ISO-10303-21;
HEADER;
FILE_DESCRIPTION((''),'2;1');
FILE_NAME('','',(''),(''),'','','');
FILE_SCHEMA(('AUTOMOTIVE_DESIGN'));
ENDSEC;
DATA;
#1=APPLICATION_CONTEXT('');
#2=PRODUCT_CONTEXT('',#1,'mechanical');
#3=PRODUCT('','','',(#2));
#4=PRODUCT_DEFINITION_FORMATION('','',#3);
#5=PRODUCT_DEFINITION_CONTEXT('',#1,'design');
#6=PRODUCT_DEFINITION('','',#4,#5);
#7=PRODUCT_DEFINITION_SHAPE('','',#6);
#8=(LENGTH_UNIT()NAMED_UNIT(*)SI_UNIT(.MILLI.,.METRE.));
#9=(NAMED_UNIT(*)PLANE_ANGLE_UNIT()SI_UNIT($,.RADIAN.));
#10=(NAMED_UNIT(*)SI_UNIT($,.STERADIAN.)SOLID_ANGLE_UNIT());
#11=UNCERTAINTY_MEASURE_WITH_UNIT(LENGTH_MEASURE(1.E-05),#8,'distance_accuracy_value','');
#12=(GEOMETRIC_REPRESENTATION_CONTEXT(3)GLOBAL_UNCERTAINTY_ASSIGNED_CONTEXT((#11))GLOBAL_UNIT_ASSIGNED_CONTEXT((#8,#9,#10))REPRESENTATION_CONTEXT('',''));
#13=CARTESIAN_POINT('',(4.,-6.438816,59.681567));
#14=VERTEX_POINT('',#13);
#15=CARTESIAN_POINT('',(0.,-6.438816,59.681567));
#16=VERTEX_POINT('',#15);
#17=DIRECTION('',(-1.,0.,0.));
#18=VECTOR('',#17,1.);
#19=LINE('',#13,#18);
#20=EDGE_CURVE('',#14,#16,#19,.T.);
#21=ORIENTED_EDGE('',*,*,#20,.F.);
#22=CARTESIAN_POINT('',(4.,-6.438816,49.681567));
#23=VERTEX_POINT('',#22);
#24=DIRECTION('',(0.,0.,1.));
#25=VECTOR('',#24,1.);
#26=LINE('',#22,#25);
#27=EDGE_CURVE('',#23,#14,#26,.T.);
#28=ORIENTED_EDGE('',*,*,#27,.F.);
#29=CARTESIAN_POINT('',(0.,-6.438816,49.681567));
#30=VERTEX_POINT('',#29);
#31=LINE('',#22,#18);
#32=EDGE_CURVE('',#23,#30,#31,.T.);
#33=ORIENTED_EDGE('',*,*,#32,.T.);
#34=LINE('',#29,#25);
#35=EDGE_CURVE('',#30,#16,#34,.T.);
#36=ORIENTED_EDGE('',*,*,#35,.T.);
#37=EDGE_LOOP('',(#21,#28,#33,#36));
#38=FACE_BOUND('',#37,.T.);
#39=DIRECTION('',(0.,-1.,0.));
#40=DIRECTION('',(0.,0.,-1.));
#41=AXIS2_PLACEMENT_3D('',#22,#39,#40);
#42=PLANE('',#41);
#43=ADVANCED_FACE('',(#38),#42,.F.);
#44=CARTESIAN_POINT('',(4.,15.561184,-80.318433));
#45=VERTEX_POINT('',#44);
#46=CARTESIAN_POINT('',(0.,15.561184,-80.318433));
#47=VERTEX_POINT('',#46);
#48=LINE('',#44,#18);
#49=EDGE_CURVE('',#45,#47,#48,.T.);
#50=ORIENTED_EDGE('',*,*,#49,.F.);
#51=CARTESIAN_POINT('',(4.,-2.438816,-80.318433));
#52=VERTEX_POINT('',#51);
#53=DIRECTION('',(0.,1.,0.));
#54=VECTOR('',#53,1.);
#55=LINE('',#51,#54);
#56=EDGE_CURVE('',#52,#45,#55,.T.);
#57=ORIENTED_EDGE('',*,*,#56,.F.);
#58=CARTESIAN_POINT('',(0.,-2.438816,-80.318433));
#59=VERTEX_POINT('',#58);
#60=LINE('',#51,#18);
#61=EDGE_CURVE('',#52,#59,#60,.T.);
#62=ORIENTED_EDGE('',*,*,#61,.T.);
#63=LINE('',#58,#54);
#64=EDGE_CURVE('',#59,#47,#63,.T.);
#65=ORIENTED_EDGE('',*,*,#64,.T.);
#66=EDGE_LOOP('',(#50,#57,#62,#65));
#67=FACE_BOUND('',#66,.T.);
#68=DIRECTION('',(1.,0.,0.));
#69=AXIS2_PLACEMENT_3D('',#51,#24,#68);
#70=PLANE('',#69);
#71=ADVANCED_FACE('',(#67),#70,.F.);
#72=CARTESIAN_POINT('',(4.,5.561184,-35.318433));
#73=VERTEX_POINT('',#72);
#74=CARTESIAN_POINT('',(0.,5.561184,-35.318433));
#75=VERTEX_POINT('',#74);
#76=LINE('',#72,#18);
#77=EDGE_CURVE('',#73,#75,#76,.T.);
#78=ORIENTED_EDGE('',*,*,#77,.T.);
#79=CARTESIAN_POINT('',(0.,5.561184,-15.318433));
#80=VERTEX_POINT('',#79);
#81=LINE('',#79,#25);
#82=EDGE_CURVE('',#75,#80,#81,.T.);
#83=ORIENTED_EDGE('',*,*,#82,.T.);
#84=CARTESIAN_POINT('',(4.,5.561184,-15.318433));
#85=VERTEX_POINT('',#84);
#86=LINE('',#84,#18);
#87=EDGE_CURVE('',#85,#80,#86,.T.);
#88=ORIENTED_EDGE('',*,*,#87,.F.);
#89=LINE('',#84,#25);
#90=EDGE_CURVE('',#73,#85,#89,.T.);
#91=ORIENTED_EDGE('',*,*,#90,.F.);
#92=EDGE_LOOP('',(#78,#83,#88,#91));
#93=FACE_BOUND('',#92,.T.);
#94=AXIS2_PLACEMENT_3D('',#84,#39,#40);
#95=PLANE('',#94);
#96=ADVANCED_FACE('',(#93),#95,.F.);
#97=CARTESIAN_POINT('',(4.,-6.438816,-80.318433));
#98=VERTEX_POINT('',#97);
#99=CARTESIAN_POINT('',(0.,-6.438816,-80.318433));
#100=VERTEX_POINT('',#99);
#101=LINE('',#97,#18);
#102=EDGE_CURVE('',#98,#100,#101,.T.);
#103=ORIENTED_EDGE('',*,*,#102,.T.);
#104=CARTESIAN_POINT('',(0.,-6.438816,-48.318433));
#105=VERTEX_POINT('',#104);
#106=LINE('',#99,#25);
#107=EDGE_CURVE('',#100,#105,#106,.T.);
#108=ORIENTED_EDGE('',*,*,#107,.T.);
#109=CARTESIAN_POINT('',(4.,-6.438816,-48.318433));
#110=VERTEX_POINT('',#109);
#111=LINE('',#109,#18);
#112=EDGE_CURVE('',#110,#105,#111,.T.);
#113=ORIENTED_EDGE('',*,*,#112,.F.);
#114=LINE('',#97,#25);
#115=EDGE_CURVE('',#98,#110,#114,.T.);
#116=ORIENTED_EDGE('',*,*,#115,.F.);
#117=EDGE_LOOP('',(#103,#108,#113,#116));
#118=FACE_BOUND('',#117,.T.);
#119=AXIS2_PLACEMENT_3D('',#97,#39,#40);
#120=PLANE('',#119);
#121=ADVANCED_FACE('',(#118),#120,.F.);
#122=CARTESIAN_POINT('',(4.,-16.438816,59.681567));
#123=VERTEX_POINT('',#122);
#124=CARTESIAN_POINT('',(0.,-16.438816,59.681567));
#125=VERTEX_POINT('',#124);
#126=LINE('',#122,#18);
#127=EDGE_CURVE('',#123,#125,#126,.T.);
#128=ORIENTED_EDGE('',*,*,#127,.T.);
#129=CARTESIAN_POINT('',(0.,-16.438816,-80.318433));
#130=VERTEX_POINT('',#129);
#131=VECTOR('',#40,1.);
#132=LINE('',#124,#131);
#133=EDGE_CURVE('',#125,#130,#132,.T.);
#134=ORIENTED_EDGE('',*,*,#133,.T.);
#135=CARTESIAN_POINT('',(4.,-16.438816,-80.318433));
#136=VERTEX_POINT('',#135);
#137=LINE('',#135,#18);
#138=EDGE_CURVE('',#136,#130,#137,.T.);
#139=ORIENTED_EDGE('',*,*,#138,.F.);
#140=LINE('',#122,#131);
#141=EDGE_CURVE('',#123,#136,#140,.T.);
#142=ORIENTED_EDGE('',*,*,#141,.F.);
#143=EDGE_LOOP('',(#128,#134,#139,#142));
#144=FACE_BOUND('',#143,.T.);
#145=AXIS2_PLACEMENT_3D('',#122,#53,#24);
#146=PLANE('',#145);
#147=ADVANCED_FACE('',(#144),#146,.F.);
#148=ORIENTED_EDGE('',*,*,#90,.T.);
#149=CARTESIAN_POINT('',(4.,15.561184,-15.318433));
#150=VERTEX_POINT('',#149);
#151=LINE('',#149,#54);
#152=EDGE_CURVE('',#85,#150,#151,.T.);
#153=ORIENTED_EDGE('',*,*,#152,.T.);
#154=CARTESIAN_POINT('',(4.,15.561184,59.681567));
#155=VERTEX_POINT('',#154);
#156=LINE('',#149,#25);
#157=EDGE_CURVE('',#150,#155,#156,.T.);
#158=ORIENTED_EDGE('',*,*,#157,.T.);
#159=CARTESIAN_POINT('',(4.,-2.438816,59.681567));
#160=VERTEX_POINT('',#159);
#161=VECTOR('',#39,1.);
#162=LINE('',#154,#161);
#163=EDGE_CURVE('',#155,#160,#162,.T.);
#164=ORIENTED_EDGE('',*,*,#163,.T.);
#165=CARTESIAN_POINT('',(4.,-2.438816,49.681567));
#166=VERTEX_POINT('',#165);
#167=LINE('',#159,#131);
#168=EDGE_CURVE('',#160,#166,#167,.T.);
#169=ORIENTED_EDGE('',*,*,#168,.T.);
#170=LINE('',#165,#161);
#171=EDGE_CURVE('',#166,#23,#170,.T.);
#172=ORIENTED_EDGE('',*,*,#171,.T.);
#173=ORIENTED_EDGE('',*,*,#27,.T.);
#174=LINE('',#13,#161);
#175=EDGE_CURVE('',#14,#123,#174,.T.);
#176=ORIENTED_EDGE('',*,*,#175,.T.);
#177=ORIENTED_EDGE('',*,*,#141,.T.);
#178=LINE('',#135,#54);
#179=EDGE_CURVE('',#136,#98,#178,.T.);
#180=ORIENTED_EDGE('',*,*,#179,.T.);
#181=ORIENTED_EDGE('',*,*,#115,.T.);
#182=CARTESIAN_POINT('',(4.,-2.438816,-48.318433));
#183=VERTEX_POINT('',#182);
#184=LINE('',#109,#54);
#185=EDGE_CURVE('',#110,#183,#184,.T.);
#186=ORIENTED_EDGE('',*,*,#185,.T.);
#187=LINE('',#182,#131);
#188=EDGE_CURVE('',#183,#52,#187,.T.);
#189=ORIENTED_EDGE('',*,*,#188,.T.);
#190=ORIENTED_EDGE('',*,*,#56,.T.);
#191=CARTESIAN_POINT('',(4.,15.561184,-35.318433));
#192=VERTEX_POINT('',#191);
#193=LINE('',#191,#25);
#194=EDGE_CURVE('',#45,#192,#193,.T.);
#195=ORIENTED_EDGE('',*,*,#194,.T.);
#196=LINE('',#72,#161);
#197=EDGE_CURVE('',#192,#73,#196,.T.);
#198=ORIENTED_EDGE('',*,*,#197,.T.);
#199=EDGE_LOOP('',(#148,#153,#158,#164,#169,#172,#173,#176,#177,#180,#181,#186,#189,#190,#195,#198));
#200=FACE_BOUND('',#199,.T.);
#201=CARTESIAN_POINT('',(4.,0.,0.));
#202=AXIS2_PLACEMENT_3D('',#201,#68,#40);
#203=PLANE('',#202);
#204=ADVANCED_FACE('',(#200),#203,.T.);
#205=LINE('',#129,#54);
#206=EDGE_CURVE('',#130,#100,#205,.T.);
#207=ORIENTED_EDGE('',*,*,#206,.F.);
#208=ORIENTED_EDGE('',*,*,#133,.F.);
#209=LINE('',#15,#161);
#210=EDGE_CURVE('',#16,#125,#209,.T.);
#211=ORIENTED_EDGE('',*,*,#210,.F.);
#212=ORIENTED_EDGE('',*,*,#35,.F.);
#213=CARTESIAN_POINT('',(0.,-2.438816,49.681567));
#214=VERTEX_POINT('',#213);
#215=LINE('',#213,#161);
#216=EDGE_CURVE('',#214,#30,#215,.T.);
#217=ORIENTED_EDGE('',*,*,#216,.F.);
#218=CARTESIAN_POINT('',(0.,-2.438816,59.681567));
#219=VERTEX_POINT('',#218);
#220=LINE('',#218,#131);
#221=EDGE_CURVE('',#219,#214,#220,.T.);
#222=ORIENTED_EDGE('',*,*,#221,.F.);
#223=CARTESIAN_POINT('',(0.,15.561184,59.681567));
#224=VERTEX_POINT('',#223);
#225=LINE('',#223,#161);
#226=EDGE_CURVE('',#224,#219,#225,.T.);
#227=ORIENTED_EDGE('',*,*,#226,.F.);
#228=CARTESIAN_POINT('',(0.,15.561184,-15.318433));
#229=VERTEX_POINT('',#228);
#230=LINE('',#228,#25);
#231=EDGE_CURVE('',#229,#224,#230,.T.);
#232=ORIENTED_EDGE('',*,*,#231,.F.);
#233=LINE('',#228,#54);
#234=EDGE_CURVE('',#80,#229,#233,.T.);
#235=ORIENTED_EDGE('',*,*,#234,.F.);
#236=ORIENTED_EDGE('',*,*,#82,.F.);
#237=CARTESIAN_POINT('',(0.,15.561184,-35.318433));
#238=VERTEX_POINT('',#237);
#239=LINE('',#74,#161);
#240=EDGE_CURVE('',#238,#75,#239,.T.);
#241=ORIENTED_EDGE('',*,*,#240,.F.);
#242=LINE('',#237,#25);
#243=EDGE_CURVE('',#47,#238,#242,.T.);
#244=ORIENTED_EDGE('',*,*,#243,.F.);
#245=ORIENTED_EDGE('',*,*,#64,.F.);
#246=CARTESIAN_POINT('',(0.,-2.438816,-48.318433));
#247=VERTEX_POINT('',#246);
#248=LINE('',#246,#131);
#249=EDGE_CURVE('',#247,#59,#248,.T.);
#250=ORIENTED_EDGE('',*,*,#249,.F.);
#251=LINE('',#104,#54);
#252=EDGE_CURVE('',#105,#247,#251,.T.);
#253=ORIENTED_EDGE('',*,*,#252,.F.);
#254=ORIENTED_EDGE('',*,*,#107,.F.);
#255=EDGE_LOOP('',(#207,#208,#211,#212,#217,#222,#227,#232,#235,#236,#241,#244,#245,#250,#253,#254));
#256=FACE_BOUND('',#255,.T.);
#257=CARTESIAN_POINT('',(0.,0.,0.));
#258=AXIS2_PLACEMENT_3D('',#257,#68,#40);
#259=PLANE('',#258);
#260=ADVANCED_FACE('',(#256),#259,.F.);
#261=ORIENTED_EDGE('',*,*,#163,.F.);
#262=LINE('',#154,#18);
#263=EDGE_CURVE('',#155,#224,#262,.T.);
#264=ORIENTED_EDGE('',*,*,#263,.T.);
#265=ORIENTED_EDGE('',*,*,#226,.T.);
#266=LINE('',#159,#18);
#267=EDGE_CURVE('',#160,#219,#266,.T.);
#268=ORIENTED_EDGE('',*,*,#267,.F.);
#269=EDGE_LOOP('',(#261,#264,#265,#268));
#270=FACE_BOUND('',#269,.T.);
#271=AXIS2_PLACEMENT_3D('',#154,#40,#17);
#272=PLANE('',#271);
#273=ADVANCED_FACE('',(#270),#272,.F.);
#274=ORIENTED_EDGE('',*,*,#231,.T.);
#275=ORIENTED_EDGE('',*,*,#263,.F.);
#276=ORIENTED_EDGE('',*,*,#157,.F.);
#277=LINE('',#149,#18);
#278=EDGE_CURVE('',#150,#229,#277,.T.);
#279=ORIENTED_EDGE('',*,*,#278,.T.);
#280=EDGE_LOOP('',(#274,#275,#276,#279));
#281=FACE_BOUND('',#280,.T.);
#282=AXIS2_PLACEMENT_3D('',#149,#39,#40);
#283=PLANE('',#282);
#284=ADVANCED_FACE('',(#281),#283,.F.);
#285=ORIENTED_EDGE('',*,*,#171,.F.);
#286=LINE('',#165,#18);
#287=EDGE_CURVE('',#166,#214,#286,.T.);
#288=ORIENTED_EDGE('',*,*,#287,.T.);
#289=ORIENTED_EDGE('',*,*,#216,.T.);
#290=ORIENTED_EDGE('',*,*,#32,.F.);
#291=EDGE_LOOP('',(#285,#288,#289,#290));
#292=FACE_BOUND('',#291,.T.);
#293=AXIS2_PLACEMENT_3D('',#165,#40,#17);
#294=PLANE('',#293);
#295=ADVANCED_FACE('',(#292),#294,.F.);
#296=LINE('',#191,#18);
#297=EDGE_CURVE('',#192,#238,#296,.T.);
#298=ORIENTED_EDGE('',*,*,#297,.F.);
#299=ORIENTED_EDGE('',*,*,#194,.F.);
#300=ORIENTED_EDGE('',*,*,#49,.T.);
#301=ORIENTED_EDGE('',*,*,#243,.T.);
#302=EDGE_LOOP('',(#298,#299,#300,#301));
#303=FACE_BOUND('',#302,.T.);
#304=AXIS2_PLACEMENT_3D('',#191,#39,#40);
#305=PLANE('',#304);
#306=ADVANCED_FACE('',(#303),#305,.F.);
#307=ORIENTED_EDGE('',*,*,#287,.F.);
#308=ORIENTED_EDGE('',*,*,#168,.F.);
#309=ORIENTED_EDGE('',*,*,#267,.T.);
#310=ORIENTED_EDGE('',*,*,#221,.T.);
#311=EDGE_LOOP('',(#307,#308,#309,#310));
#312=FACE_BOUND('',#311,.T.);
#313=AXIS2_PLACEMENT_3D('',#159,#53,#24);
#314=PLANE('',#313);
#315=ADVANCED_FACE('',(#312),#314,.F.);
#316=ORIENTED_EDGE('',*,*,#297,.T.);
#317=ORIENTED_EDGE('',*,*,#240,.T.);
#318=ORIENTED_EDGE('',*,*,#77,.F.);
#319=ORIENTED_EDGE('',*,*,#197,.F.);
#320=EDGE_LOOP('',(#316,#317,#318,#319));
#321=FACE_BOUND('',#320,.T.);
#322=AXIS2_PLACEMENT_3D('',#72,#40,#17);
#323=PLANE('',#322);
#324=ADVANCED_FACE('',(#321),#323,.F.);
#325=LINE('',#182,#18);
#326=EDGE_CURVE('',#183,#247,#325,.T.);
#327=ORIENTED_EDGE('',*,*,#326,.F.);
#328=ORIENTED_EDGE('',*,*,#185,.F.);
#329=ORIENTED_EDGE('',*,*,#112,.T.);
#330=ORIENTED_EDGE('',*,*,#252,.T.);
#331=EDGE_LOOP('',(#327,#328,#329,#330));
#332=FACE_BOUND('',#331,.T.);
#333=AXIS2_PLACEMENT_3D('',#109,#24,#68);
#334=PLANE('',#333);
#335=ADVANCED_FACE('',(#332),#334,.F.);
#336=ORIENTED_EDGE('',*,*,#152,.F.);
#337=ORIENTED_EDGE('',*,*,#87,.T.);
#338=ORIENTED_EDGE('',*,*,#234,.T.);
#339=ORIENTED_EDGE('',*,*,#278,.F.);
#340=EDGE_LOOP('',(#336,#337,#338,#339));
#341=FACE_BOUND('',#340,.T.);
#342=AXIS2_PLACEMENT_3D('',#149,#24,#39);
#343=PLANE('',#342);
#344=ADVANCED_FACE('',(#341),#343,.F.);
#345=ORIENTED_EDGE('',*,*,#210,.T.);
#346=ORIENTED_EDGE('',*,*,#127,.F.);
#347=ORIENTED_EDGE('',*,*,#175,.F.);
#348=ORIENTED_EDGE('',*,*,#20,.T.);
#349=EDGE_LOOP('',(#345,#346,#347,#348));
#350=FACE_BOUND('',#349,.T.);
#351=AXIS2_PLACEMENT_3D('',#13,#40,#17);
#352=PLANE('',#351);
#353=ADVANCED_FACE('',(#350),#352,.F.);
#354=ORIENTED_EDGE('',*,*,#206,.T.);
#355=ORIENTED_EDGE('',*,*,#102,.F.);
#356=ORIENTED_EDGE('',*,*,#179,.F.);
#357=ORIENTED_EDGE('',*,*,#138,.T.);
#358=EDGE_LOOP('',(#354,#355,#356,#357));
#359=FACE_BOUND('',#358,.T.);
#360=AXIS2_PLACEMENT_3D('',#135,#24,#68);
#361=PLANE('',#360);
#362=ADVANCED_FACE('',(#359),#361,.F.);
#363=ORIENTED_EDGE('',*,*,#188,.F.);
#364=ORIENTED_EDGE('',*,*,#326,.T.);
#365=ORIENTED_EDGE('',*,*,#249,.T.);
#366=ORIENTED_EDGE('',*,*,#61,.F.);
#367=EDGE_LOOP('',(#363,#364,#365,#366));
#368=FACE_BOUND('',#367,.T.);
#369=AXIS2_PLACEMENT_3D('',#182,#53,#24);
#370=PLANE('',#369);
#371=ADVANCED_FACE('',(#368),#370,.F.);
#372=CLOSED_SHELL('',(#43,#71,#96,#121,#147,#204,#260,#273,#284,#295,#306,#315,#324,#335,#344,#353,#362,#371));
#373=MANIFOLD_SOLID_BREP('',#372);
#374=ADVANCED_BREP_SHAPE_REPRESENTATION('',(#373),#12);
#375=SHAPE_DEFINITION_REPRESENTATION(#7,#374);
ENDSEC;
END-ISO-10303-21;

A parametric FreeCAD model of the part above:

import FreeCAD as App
import Part
import Sketcher
from FreeCAD import Vector
Q = App.Units.Quantity

doc = App.newDocument("Part")
body = doc.addObject("PartDesign::Body", "Body")

# Sketch on YZ plane
sketch1 = body.newObject("Sketcher::SketchObject", "Sketch")
sketch1.AttachmentSupport = (doc.getObject("YZ_Plane"), [""])
sketch1.MapMode = "FlatFace"
sketch1.addGeometry(Part.LineSegment(Vector(15.561184, 59.681567, 0), Vector(-2.438816, 59.681567, 0)), False)
sketch1.addGeometry(Part.LineSegment(Vector(-2.438816, 59.681567, 0), Vector(-2.438816, 49.681567, 0)), False)
sketch1.addGeometry(Part.LineSegment(Vector(-2.438816, 49.681567, 0), Vector(-6.438816, 49.681567, 0)), False)
sketch1.addGeometry(Part.LineSegment(Vector(-6.438816, 49.681567, 0), Vector(-6.438816, 59.681567, 0)), False)
sketch1.addGeometry(Part.LineSegment(Vector(-6.438816, 59.681567, 0), Vector(-16.438816, 59.681567, 0)), False)
sketch1.addGeometry(Part.LineSegment(Vector(-16.438816, 59.681567, 0), Vector(-16.438816, -80.318433, 0)), False)
sketch1.addGeometry(Part.LineSegment(Vector(-16.438816, -80.318433, 0), Vector(-6.438816, -80.318433, 0)), False)
sketch1.addGeometry(Part.LineSegment(Vector(-6.438816, -80.318433, 0), Vector(-6.438816, -48.318433, 0)), False)
sketch1.addGeometry(Part.LineSegment(Vector(-6.438816, -48.318433, 0), Vector(-2.438816, -48.318433, 0)), False)
sketch1.addGeometry(Part.LineSegment(Vector(-2.438816, -48.318433, 0), Vector(-2.438816, -80.318433, 0)), False)
sketch1.addGeometry(Part.LineSegment(Vector(-2.438816, -80.318433, 0), Vector(15.561184, -80.318433, 0)), False)
sketch1.addGeometry(Part.LineSegment(Vector(15.561184, -80.318433, 0), Vector(15.561184, -35.318433, 0)), False)
sketch1.addGeometry(Part.LineSegment(Vector(15.561184, -35.318433, 0), Vector(5.561184, -35.318433, 0)), False)
sketch1.addGeometry(Part.LineSegment(Vector(5.561184, -35.318433, 0), Vector(5.561184, -15.318433, 0)), False)
sketch1.addGeometry(Part.LineSegment(Vector(5.561184, -15.318433, 0), Vector(15.561184, -15.318433, 0)), False)
sketch1.addGeometry(Part.LineSegment(Vector(15.561184, -15.318433, 0), Vector(15.561184, 59.681567, 0)), False)
sketch1.addConstraint(Sketcher.Constraint("Coincident", 0, 2, 1, 1))
sketch1.addConstraint(Sketcher.Constraint("Coincident", 1, 2, 2, 1))
sketch1.addConstraint(Sketcher.Constraint("Coincident", 2, 2, 3, 1))
sketch1.addConstraint(Sketcher.Constraint("Coincident", 3, 2, 4, 1))
sketch1.addConstraint(Sketcher.Constraint("Coincident", 4, 2, 5, 1))
sketch1.addConstraint(Sketcher.Constraint("Coincident", 5, 2, 6, 1))
sketch1.addConstraint(Sketcher.Constraint("Coincident", 6, 2, 7, 1))
sketch1.addConstraint(Sketcher.Constraint("Coincident", 7, 2, 8, 1))
sketch1.addConstraint(Sketcher.Constraint("Coincident", 8, 2, 9, 1))
sketch1.addConstraint(Sketcher.Constraint("Coincident", 9, 2, 10, 1))
sketch1.addConstraint(Sketcher.Constraint("Coincident", 10, 2, 11, 1))
sketch1.addConstraint(Sketcher.Constraint("Coincident", 11, 2, 12, 1))
sketch1.addConstraint(Sketcher.Constraint("Coincident", 12, 2, 13, 1))
sketch1.addConstraint(Sketcher.Constraint("Coincident", 13, 2, 14, 1))
sketch1.addConstraint(Sketcher.Constraint("Coincident", 14, 2, 15, 1))
sketch1.addConstraint(Sketcher.Constraint("Coincident", 15, 2, 0, 1))
sketch1.addConstraint(Sketcher.Constraint("Horizontal", 0))
sketch1.addConstraint(Sketcher.Constraint("Vertical", 1))
sketch1.addConstraint(Sketcher.Constraint("Horizontal", 2))
sketch1.addConstraint(Sketcher.Constraint("Vertical", 3))
sketch1.addConstraint(Sketcher.Constraint("Horizontal", 4))
sketch1.addConstraint(Sketcher.Constraint("Vertical", 5))
sketch1.addConstraint(Sketcher.Constraint("Horizontal", 6))
sketch1.addConstraint(Sketcher.Constraint("Vertical", 7))
sketch1.addConstraint(Sketcher.Constraint("Horizontal", 8))
sketch1.addConstraint(Sketcher.Constraint("Vertical", 9))
sketch1.addConstraint(Sketcher.Constraint("Horizontal", 10))
sketch1.addConstraint(Sketcher.Constraint("Vertical", 11))
sketch1.addConstraint(Sketcher.Constraint("Horizontal", 12))
sketch1.addConstraint(Sketcher.Constraint("Vertical", 13))
sketch1.addConstraint(Sketcher.Constraint("Horizontal", 14))
sketch1.addConstraint(Sketcher.Constraint("Vertical", 15))
sketch1.addConstraint(Sketcher.Constraint("Horizontal", 0, 2, 3, 2))
sketch1.addConstraint(Sketcher.Constraint("Horizontal", 6, 2, 9, 2))
sketch1.addConstraint(Sketcher.Constraint("Vertical", 3, 2, 6, 2))
sketch1.addConstraint(Sketcher.Constraint("Vertical", 1, 2, 8, 2))
sketch1.addConstraint(Sketcher.Constraint("Vertical", 11, 2, 14, 2))
sketch1.addConstraint(Sketcher.Constraint("Equal", 6, 12))
sketch1.addConstraint(Sketcher.Constraint("Equal", 14, 1))
sketch1.addConstraint(Sketcher.Constraint("DistanceX", 0, 2, 0, 1, Q("18 mm")))
sketch1.addConstraint(Sketcher.Constraint("DistanceX", 2, 2, 2, 1, Q("4 mm")))
sketch1.addConstraint(Sketcher.Constraint("DistanceX", 4, 2, 4, 1, Q("10 mm")))
sketch1.addConstraint(Sketcher.Constraint("DistanceY", 5, 2, 5, 1, Q("140 mm")))
sketch1.addConstraint(Sketcher.Constraint("DistanceY", 7, 1, 7, 2, Q("32 mm")))
sketch1.addConstraint(Sketcher.Constraint("DistanceY", 11, 1, 11, 2, Q("45 mm")))
sketch1.addConstraint(Sketcher.Constraint("DistanceY", 13, 1, 13, 2, Q("20 mm")))
sketch1.addConstraint(Sketcher.Constraint("DistanceX", 0, 2, -1, 1, Q("2.438816 mm")))
sketch1.addConstraint(Sketcher.Constraint("DistanceY", -1, 1, 0, 2, Q("59.681567 mm")))
pad1 = body.newObject("PartDesign::Pad", "Pad")
pad1.Profile = sketch1
pad1.Length = 4

doc.recompute()
